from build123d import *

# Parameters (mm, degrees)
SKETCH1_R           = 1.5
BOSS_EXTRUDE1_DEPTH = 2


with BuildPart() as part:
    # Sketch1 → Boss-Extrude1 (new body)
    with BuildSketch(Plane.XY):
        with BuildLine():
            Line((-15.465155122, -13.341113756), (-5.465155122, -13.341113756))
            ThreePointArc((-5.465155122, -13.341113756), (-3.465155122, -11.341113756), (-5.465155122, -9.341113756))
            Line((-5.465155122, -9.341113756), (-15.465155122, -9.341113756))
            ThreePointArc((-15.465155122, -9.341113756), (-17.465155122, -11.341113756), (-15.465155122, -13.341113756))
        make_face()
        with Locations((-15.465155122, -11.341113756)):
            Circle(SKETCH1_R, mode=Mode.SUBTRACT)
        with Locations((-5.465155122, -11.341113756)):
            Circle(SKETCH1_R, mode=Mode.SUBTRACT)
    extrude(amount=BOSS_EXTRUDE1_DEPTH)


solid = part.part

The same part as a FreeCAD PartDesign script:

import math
import FreeCAD as App
import Part
import Sketcher

V = App.Vector
Q = App.Units.Quantity

doc = App.newDocument("Part")
body = doc.addObject("PartDesign::Body", "Body")

# Sketch on XY plane
sketch1 = doc.addObject("Sketcher::SketchObject", "Sketch")
body.addObject(sketch1)
sketch1.AttachmentSupport = (doc.XY_Plane, [""])
sketch1.MapMode = "FlatFace"
sketch1.addGeometry([
    Part.LineSegment(V(-15.5, -13.3, 0), V(-5.5, -13.3, 0)),  # 0
    Part.ArcOfCircle(Part.Circle(V(-5.5, -11.3, 0), V(0, 0, 1), 2), math.radians(-90), math.radians(90)),  # 1
    Part.LineSegment(V(-5.5, -9.3, 0), V(-15.5, -9.3, 0)),  # 2
    Part.ArcOfCircle(Part.Circle(V(-15.5, -11.3, 0), V(0, 0, 1), 2), math.radians(90), math.radians(270)),  # 3
    Part.Circle(V(-15.5, -11.3, 0), V(0, 0, 1), 1.5),  # 4
    Part.Circle(V(-5.5, -11.3, 0), V(0, 0, 1), 1.5),  # 5
], False)
sketch1.addConstraint([
    Sketcher.Constraint("Tangent", 0, 2, 1, 1),
    Sketcher.Constraint("Tangent", 1, 2, 2, 1),
    Sketcher.Constraint("Tangent", 2, 2, 3, 1),
    Sketcher.Constraint("Tangent", 3, 2, 0, 1),
    Sketcher.Constraint("Horizontal", 0),
    Sketcher.Constraint("Horizontal", 2),
    Sketcher.Constraint("Coincident", 4, 3, 3, 3),
    Sketcher.Constraint("Coincident", 5, 3, 1, 3),
    Sketcher.Constraint("Equal", 4, 5),
    Sketcher.Constraint("Diameter", 4, Q("3 mm")),
    Sketcher.Constraint("Radius", 1, Q("2 mm")),
    Sketcher.Constraint("DistanceX", 0, 1, 0, 2, Q("10 mm")),
    Sketcher.Constraint("DistanceX", 1, 3, -1, 1, Q("5.465155 mm")),
    Sketcher.Constraint("DistanceY", 1, 3, -1, 1, Q("11.341114 mm")),
])
pad1 = doc.addObject("PartDesign::Pad", "Pad")
body.addObject(pad1)
pad1.Profile = sketch1
pad1.Length = 2

doc.recompute()
